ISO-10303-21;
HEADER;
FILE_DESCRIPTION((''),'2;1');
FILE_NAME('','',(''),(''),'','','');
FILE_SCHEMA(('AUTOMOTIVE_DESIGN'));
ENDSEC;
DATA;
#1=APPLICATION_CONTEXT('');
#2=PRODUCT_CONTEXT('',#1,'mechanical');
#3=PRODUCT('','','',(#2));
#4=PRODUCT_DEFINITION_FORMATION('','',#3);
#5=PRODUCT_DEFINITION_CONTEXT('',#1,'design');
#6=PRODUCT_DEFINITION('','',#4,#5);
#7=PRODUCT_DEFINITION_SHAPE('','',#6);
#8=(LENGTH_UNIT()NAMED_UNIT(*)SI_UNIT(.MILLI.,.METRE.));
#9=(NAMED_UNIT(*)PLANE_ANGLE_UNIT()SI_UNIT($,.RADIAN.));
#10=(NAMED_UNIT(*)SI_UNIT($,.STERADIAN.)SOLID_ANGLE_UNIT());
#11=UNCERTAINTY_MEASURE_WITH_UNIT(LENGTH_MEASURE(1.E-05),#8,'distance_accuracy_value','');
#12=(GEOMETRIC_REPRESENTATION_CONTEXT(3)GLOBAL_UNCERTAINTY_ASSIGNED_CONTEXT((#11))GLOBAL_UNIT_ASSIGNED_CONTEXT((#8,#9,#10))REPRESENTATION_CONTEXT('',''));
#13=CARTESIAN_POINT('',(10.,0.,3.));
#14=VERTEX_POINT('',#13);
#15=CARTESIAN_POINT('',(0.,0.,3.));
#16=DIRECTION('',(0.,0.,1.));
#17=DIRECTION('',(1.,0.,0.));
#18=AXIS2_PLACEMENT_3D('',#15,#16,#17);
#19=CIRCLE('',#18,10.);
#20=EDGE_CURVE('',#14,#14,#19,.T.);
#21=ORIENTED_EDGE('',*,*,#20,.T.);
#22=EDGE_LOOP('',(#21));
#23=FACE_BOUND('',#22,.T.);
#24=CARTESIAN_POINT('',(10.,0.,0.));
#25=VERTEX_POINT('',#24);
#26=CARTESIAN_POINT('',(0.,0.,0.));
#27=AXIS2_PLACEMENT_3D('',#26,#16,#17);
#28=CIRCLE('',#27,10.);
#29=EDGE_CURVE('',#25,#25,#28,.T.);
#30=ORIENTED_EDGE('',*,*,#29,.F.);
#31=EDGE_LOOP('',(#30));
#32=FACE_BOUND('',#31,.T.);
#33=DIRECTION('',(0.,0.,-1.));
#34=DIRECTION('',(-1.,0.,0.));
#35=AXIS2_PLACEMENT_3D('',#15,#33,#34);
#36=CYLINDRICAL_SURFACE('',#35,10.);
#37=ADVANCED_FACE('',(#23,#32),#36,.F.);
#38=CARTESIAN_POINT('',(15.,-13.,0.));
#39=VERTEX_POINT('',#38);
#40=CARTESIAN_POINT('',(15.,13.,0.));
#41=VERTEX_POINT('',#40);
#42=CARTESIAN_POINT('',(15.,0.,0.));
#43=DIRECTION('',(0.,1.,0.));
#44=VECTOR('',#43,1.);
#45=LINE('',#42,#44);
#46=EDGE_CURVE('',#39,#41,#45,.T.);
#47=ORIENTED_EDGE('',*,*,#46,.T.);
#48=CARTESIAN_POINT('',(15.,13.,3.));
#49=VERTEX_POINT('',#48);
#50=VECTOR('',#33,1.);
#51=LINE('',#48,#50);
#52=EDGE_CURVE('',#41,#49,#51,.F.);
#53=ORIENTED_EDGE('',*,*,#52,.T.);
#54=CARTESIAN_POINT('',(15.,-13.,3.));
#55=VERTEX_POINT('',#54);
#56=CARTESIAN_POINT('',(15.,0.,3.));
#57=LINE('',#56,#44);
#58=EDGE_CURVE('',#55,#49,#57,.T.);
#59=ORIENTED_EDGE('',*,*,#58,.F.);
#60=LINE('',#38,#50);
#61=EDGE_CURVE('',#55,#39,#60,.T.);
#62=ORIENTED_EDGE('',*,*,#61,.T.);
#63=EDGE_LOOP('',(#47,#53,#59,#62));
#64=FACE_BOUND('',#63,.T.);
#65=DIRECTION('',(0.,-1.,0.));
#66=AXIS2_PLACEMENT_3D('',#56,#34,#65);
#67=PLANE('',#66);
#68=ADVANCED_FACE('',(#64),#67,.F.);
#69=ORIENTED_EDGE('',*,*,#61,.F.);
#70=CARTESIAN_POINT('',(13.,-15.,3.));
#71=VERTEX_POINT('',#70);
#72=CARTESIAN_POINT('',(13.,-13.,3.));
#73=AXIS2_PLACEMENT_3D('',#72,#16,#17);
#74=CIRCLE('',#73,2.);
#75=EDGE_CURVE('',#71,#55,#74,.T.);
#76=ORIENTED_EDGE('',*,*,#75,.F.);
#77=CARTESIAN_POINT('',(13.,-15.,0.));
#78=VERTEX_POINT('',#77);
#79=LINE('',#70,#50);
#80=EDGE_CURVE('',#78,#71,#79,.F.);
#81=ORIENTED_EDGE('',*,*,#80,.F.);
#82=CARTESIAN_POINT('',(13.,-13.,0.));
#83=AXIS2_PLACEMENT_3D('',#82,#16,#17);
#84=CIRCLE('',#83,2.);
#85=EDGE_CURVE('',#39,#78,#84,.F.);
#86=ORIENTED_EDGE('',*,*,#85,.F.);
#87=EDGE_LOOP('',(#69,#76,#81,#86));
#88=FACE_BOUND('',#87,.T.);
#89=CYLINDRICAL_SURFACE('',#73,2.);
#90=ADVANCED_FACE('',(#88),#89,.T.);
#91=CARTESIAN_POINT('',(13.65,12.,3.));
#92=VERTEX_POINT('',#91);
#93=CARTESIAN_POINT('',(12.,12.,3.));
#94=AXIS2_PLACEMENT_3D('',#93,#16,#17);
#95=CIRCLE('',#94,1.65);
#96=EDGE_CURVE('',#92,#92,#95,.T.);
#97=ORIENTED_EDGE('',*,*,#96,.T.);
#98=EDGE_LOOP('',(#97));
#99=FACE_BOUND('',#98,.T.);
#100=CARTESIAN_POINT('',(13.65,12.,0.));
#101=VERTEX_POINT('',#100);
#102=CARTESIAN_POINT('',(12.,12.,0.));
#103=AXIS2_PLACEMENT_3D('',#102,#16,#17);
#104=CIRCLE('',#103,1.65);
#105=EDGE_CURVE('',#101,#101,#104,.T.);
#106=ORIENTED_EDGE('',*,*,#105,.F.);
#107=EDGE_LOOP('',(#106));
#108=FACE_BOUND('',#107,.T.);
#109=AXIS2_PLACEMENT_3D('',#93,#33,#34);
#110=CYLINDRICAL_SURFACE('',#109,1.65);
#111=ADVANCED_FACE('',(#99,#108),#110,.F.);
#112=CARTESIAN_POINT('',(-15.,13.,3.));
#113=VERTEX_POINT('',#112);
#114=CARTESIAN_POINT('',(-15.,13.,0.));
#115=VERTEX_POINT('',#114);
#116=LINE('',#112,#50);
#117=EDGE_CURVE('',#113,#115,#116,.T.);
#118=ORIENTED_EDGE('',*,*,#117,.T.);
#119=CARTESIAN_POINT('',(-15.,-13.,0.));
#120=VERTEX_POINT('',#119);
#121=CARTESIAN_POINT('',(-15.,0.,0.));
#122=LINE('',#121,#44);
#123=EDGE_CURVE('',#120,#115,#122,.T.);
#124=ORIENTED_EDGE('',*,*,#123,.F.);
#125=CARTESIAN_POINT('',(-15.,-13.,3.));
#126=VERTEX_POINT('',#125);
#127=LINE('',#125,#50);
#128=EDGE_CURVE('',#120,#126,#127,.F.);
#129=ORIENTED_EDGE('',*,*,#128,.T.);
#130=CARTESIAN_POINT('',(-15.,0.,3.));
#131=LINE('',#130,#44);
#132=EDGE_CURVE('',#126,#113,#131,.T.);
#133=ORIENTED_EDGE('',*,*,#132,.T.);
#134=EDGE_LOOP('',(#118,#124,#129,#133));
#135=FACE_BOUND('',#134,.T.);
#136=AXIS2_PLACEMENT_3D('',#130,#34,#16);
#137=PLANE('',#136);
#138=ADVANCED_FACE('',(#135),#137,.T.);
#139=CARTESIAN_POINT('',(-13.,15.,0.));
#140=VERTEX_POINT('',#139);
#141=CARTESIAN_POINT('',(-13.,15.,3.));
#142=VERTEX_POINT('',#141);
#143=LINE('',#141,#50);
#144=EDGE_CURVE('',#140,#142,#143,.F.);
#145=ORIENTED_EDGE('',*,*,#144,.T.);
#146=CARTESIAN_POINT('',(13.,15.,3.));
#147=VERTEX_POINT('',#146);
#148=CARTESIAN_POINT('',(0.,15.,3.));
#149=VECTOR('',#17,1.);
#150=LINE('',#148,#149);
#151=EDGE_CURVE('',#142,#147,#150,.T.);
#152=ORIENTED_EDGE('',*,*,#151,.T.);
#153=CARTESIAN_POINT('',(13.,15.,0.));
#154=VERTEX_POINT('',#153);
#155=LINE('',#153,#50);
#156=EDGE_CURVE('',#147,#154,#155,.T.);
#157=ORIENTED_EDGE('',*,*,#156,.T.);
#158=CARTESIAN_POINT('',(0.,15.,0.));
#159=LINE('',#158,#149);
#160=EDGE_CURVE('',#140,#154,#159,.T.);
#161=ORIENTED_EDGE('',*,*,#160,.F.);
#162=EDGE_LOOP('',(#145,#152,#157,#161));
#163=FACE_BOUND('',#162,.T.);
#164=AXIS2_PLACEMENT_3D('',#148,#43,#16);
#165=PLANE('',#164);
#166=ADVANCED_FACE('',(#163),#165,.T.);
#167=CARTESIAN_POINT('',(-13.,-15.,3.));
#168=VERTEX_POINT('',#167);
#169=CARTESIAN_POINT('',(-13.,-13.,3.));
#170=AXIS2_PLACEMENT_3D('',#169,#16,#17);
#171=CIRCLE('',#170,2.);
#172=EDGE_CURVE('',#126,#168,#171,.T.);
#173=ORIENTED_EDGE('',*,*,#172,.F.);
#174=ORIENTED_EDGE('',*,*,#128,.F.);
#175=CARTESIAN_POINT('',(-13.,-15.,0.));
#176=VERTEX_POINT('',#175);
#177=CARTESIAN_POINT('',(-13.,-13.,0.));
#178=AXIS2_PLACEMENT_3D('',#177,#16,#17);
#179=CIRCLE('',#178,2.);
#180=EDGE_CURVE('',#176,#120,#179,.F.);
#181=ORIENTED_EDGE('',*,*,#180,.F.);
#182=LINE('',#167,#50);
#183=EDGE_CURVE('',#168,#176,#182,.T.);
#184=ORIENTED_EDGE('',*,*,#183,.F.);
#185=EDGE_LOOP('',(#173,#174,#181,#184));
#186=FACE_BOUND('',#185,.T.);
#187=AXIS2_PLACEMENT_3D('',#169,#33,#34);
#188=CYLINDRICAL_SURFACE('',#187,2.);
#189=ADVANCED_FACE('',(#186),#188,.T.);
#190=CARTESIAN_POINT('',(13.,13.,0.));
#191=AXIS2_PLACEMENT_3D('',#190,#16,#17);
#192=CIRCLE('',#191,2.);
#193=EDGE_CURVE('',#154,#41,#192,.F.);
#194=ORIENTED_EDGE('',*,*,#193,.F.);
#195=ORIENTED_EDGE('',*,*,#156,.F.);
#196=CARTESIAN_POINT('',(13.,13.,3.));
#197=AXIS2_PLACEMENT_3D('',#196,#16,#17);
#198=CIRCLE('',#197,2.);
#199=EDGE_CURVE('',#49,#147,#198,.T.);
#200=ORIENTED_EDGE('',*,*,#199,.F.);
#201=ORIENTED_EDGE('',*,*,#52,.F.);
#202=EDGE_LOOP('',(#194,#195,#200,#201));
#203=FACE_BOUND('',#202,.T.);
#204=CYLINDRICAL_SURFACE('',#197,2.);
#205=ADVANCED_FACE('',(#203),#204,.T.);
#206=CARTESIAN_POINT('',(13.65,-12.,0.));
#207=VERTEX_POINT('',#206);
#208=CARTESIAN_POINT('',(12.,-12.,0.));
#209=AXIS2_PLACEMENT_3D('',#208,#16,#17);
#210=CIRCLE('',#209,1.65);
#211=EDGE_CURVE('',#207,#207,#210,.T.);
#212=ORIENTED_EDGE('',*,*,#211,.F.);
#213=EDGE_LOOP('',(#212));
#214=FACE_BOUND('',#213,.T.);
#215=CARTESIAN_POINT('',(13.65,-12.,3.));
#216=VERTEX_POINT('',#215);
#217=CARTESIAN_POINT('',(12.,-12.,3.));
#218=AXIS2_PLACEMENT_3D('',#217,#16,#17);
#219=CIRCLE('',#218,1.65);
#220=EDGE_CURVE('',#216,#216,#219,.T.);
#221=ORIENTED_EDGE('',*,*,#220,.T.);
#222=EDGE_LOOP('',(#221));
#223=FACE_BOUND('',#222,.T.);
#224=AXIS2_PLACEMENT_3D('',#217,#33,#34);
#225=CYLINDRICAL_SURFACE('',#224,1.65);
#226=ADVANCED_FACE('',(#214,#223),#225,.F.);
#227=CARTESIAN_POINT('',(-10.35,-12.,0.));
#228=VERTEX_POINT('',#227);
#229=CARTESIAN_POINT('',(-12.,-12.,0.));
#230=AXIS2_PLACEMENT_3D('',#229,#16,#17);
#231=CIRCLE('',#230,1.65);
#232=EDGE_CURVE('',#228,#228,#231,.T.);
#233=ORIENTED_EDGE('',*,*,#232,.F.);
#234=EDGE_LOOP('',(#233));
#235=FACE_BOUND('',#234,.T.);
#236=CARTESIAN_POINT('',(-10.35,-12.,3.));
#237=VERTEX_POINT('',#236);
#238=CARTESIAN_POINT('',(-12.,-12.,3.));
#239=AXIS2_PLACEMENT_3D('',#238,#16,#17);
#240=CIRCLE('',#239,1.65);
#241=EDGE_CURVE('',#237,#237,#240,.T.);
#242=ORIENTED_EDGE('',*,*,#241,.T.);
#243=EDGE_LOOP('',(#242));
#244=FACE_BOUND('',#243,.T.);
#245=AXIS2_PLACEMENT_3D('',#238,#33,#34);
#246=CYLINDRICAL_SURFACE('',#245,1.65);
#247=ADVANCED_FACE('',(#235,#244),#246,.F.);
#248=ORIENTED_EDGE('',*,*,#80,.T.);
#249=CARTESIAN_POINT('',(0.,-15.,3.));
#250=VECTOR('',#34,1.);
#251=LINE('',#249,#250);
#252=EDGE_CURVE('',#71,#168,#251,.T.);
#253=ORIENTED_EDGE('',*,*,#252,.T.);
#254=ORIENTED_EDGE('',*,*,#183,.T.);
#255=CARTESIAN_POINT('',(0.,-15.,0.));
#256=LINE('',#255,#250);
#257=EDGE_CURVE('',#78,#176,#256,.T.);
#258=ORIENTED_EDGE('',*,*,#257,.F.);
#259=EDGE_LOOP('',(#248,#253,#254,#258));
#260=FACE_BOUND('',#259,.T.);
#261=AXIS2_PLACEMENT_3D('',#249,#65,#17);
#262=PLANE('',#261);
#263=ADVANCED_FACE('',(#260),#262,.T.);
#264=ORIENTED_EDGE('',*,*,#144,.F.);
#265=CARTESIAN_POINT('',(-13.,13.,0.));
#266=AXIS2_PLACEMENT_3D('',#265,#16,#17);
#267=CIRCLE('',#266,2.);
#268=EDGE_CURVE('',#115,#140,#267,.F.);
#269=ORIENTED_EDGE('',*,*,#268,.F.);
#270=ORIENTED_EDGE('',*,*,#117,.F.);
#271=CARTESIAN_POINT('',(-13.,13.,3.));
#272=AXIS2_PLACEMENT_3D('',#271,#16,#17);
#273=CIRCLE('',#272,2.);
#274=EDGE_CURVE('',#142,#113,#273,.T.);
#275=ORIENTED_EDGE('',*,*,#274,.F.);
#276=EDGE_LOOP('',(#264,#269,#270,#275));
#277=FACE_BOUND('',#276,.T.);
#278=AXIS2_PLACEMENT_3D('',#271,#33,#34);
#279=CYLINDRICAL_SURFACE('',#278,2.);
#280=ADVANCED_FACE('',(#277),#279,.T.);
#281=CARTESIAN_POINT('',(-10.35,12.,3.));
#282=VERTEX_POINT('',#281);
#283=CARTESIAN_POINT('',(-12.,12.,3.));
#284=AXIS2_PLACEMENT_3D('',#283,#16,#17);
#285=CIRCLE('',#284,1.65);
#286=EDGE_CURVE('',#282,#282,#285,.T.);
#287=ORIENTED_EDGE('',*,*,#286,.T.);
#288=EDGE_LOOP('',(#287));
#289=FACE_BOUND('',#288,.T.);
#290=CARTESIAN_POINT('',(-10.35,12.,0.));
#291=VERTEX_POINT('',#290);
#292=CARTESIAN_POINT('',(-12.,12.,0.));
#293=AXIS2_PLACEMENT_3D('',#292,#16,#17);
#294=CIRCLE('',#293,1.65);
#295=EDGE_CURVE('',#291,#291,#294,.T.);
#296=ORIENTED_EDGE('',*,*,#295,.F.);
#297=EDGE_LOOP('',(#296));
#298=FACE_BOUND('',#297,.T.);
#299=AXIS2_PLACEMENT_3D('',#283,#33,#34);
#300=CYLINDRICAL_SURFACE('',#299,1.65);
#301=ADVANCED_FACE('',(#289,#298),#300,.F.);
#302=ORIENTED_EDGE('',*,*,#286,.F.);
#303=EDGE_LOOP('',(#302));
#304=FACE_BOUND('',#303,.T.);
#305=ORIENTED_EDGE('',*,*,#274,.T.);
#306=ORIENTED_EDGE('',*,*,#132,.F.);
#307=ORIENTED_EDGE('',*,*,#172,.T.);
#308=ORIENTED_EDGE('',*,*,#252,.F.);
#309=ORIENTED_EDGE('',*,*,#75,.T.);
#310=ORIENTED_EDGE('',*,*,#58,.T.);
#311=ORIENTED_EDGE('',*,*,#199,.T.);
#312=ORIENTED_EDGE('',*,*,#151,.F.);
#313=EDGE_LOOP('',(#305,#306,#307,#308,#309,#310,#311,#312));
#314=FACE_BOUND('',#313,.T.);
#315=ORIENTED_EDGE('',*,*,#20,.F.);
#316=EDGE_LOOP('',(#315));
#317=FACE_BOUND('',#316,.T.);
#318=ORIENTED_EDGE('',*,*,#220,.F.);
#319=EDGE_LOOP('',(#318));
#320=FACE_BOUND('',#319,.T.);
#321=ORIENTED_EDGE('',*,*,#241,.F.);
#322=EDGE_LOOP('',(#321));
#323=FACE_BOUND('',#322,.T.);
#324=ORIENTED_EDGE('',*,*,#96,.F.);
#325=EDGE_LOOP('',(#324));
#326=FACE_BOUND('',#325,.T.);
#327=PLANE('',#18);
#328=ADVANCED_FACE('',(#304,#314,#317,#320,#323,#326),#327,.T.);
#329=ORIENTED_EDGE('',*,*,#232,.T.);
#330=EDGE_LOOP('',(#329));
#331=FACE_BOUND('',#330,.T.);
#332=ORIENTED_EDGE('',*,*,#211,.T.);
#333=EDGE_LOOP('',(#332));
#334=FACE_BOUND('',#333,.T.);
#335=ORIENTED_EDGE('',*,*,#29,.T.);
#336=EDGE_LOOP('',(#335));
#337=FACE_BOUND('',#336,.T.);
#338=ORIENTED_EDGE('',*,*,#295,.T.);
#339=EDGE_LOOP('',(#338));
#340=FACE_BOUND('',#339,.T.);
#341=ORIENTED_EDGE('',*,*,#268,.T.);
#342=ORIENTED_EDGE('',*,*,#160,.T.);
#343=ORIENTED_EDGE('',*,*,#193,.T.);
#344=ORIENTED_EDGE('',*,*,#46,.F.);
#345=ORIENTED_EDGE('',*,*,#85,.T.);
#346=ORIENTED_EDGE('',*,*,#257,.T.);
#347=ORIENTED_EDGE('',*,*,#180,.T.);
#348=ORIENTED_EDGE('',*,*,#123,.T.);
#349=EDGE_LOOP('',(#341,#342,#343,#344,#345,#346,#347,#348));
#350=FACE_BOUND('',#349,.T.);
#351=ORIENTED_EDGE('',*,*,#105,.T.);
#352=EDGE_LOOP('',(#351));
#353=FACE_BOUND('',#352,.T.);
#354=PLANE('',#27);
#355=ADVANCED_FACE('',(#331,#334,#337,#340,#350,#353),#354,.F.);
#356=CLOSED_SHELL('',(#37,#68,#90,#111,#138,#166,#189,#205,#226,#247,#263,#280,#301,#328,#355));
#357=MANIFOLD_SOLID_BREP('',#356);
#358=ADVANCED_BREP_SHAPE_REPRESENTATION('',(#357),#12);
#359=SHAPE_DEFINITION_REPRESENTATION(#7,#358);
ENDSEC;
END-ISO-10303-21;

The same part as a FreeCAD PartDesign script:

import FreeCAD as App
import Part
import Sketcher
Q = App.Units.Quantity


def edges_at(feature, points):
    """Names of the edges that pass closest to the given points."""
    edges = feature.Shape.Edges
    near = lambda p: min(range(len(edges)), key=lambda i: edges[i].distToShape(Part.Vertex(*p))[0])
    return sorted({f"Edge{near(p) + 1}" for p in points})

doc = App.newDocument("Part")
body = doc.addObject("PartDesign::Body", "Body")

sketch1 = doc.addObject("Sketcher::SketchObject", "Sketch")
body.addObject(sketch1)
sketch1.AttachmentSupport = (doc.XY_Plane, [""])
sketch1.MapMode = "FlatFace"
sketch1.addGeometry([
    Part.LineSegment(App.Vector(-15, 15, 0), App.Vector(-15, -15, 0)),
    Part.LineSegment(App.Vector(-15, -15, 0), App.Vector(15, -15, 0)),
    Part.LineSegment(App.Vector(15, -15, 0), App.Vector(15, 15, 0)),
    Part.LineSegment(App.Vector(15, 15, 0), App.Vector(-15, 15, 0)),
    Part.Circle(App.Vector(-12, -12, 0), App.Vector(0, 0, 1), 1.6),
    Part.Circle(App.Vector(12, -12, 0), App.Vector(0, 0, 1), 1.6),
    Part.Circle(App.Vector(-12, 12, 0), App.Vector(0, 0, 1), 1.6),
    Part.Circle(App.Vector(0, 0, 0), App.Vector(0, 0, 1), 10),
    Part.Circle(App.Vector(12, 12, 0), App.Vector(0, 0, 1), 1.6),
], False)
sketch1.addConstraint([
    Sketcher.Constraint("Coincident", 0, 2, 1, 1),
    Sketcher.Constraint("Coincident", 1, 2, 2, 1),
    Sketcher.Constraint("Coincident", 2, 2, 3, 1),
    Sketcher.Constraint("Coincident", 3, 2, 0, 1),
    Sketcher.Constraint("Vertical", 0),
    Sketcher.Constraint("Horizontal", 1),
    Sketcher.Constraint("Vertical", 2),
    Sketcher.Constraint("Horizontal", 3),
    Sketcher.Constraint("Coincident", 7, 3, -1, 1),
    Sketcher.Constraint("Equal", 4, 5),
    Sketcher.Constraint("Equal", 5, 6),
    Sketcher.Constraint("Equal", 6, 8),
    Sketcher.Constraint("Symmetric", 5, 3, 6, 3, -1, 1),
    Sketcher.Constraint("Symmetric", 4, 3, 8, 3, -1, 1),
    Sketcher.Constraint("Symmetric", 0, 2, 2, 2, -1, 1),
    Sketcher.Constraint("Symmetric", 4, 3, 5, 3, -2),
    Sketcher.Constraint("Equal", 3, 0),
    Sketcher.Constraint("Diameter", 7, Q("20 mm")),
    Sketcher.Constraint("Diameter", 4, Q("3.3 mm")),
    Sketcher.Constraint("DistanceX", 1, 1, 1, 2, Q("30 mm")),
    Sketcher.Constraint("DistanceX", 4, 3, -1, 1, Q("12 mm")),
    Sketcher.Constraint("DistanceY", 4, 3, -1, 1, Q("12 mm")),
])
pad1 = doc.addObject("PartDesign::Pad", "Pad")
body.addObject(pad1)
pad1.Profile = sketch1
pad1.Length = 3
doc.recompute()

fillet = doc.addObject("PartDesign::Fillet", "Fillet")
body.addObject(fillet)
fillet.Base = (pad1, edges_at(pad1, [
    (-15, -15, 1.5),
    (-15, 15, 1.5),
    (15, 15, 1.5),
    (15, -15, 1.5),
]))
fillet.Radius = 2

doc.recompute()
